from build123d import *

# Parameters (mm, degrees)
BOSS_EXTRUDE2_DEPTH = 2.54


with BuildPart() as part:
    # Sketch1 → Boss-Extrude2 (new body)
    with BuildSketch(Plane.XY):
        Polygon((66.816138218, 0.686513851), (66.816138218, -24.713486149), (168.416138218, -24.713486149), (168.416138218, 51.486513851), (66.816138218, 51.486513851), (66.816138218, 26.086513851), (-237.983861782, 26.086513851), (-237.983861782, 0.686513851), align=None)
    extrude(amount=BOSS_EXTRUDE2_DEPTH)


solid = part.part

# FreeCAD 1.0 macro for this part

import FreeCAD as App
import Part
import Sketcher
Q = App.Units.Quantity

doc = App.newDocument("Part")
body = doc.addObject("PartDesign::Body", "Body")

sketch1 = body.newObject("Sketcher::SketchObject", "Sketch")
sketch1.AttachmentSupport = (doc.getObject("XY_Plane"), [""])
sketch1.MapMode = "FlatFace"
sketch1.addGeometry([
    Part.LineSegment(App.Vector(67, 1, 0), App.Vector(67, -25, 0)),
    Part.LineSegment(App.Vector(67, -25, 0), App.Vector(168, -25, 0)),
    Part.LineSegment(App.Vector(168, -25, 0), App.Vector(168, 51, 0)),
    Part.LineSegment(App.Vector(168, 51, 0), App.Vector(67, 51, 0)),
    Part.LineSegment(App.Vector(67, 51, 0), App.Vector(67, 26, 0)),
    Part.LineSegment(App.Vector(67, 26, 0), App.Vector(-238, 26, 0)),
    Part.LineSegment(App.Vector(-238, 26, 0), App.Vector(-238, 1, 0)),
    Part.LineSegment(App.Vector(-238, 1, 0), App.Vector(67, 1, 0)),
], False)
sketch1.addConstraint([
    Sketcher.Constraint("Coincident", 0, 2, 1, 1),
    Sketcher.Constraint("Coincident", 1, 2, 2, 1),
    Sketcher.Constraint("Coincident", 2, 2, 3, 1),
    Sketcher.Constraint("Coincident", 3, 2, 4, 1),
    Sketcher.Constraint("Coincident", 4, 2, 5, 1),
    Sketcher.Constraint("Coincident", 5, 2, 6, 1),
    Sketcher.Constraint("Coincident", 6, 2, 7, 1),
    Sketcher.Constraint("Coincident", 7, 2, 0, 1),
    Sketcher.Constraint("Vertical", 0),
    Sketcher.Constraint("Horizontal", 1),
    Sketcher.Constraint("Vertical", 2),
    Sketcher.Constraint("Horizontal", 3),
    Sketcher.Constraint("Vertical", 4),
    Sketcher.Constraint("Horizontal", 5),
    Sketcher.Constraint("Vertical", 6),
    Sketcher.Constraint("Horizontal", 7),
    Sketcher.Constraint("Vertical", 0, 2, 3, 2),
    Sketcher.Constraint("Equal", 0, 4),
    Sketcher.Constraint("Equal", 4, 6),
    Sketcher.Constraint("DistanceX", 1, 1, 1, 2, Q("4 in")),
    Sketcher.Constraint("DistanceX", 5, 2, 5, 1, Q("12 in")),
    Sketcher.Constraint("DistanceY", 0, 2, 0, 1, Q("1 in")),
    Sketcher.Constraint("DistanceX", -1, 1, 0, 2, 66.816138),
    Sketcher.Constraint("DistanceY", 0, 2, -1, 1, 24.713486),
])
pad1 = body.newObject("PartDesign::Pad", "Pad")
pad1.Profile = sketch1
pad1.Length = Q("0.1 in")

doc.recompute()
